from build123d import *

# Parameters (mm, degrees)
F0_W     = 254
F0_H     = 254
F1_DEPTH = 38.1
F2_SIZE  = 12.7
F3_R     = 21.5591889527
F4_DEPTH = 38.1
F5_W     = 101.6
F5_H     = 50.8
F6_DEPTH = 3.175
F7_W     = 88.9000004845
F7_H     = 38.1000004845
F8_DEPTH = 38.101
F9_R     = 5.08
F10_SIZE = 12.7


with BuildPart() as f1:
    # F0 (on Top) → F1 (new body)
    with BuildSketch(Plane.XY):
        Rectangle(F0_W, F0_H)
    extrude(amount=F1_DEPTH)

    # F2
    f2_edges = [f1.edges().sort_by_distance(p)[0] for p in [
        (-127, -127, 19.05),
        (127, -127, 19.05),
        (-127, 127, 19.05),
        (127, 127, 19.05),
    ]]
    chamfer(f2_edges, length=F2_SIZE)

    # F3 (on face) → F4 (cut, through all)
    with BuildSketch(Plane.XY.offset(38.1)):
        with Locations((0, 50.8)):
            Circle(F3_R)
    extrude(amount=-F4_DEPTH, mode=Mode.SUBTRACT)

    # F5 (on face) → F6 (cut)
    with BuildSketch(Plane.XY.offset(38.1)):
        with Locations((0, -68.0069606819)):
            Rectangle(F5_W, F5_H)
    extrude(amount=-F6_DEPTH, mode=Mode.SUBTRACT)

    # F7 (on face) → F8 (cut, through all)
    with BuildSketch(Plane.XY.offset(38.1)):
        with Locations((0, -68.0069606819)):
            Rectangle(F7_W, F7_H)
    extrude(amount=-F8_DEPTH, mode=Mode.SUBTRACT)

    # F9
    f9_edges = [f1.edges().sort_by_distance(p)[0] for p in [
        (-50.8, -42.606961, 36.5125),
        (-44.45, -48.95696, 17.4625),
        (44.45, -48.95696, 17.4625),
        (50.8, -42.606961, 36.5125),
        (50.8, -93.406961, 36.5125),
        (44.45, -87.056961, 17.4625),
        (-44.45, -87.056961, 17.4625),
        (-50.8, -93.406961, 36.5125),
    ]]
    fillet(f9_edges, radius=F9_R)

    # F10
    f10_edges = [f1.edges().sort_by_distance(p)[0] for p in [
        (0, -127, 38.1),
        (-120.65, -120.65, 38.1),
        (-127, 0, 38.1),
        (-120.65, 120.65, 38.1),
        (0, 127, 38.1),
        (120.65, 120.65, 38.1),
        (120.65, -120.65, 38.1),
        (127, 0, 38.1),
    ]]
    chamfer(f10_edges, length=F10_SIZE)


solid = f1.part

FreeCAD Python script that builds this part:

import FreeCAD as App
import Part
import Sketcher

V = App.Vector
Q = App.Units.Quantity


def edges_at(feature, points):
    """Names of the edges that pass closest to the given points."""
    edges = feature.Shape.Edges
    near = lambda p: min(range(len(edges)), key=lambda i: edges[i].distToShape(Part.Vertex(*p))[0])
    return sorted({f"Edge{near(p) + 1}" for p in points})


def add_polygon(sketch, points):
    """Adds a closed chain of lines whose ends are joined by coincident constraints."""
    first, n = sketch.GeometryCount, len(points)
    for a, b in zip(points, points[1:] + points[:1]):
        sketch.addGeometry(Part.LineSegment(App.Vector(*a, 0), App.Vector(*b, 0)), False)
    for i in range(n):
        sketch.addConstraint(Sketcher.Constraint("Coincident", first + i, 2, first + (i + 1) % n, 1))

doc = App.newDocument("Part")
body = doc.addObject("PartDesign::Body", "Body")

# Sketch on XY plane
sketch1 = body.newObject("Sketcher::SketchObject", "Sketch")
sketch1.AttachmentSupport = (doc.getObject("XY_Plane"), [""])
sketch1.MapMode = "FlatFace"
add_polygon(sketch1, [(-127, 127), (-127, -127), (127, -127), (127, 127)])  # lines 0-3
sketch1.addConstraint(Sketcher.Constraint("Vertical", 0))
sketch1.addConstraint(Sketcher.Constraint("Horizontal", 1))
sketch1.addConstraint(Sketcher.Constraint("Vertical", 2))
sketch1.addConstraint(Sketcher.Constraint("Horizontal", 3))
sketch1.addConstraint(Sketcher.Constraint("Symmetric", 0, 2, 2, 2, -1, 1))
sketch1.addConstraint(Sketcher.Constraint("Equal", 3, 0))
sketch1.addConstraint(Sketcher.Constraint("DistanceX", 1, 1, 1, 2, Q("10 in")))
pad1 = body.newObject("PartDesign::Pad", "Pad")
pad1.Profile = sketch1
pad1.Length = Q("1.5 in")
doc.recompute()

chamfer = body.newObject("PartDesign::Chamfer", "Chamfer")
chamfer.Base = (pad1, edges_at(pad1, [
    (-127, -127, 19.05),
    (127, -127, 19.05),
    (-127, 127, 19.05),
    (127, 127, 19.05),
]))
chamfer.Size = Q("0.5 in")

# Sketch on XY plane
sketch2 = body.newObject("Sketcher::SketchObject", "Sketch001")
sketch2.AttachmentSupport = (doc.getObject("XY_Plane"), [""])
sketch2.MapMode = "FlatFace"
sketch2.AttachmentOffset = App.Placement(V(0, 0, 1.5 * 25.4), App.Rotation())
sketch2.addGeometry(Part.Circle(V(0, 50.8, 0), V(0, 0, 1), 21.559189), False)
sketch2.addConstraint(Sketcher.Constraint("PointOnObject", 0, 3, -2))
sketch2.addConstraint(Sketcher.Constraint("DistanceY", -1, 1, 0, 3, Q("2 in")))
sketch2.addConstraint(Sketcher.Constraint("Diameter", 0, 43.118378))
pocket1 = body.newObject("PartDesign::Pocket", "Pocket")
pocket1.Profile = sketch2
pocket1.Type = "ThroughAll"

# Sketch on XY plane
sketch3 = body.newObject("Sketcher::SketchObject", "Sketch002")
sketch3.AttachmentSupport = (doc.getObject("XY_Plane"), [""])
sketch3.MapMode = "FlatFace"
sketch3.AttachmentOffset = App.Placement(V(0, 0, 1.5 * 25.4), App.Rotation())
add_polygon(sketch3, [(-50.8, -42.606961), (-50.8, -93.406961), (50.8, -93.406961), (50.8, -42.606961)])  # lines 0-3
sketch3.addConstraint(Sketcher.Constraint("Vertical", 0))
sketch3.addConstraint(Sketcher.Constraint("Horizontal", 1))
sketch3.addConstraint(Sketcher.Constraint("Vertical", 2))
sketch3.addConstraint(Sketcher.Constraint("Horizontal", 3))
sketch3.addConstraint(Sketcher.Constraint("DistanceX", 1, 1, 1, 2, Q("4 in")))
sketch3.addConstraint(Sketcher.Constraint("DistanceY", 0, 2, 0, 1, Q("2 in")))
sketch3.addConstraint(Sketcher.Constraint("DistanceX", 0, 2, -1, 1, Q("2 in")))
sketch3.addConstraint(Sketcher.Constraint("DistanceY", 0, 2, -1, 1, 93.406961))
pocket2 = body.newObject("PartDesign::Pocket", "Pocket001")
pocket2.Profile = sketch3
pocket2.Length = Q("0.125 in")

# Sketch on XY plane
sketch4 = body.newObject("Sketcher::SketchObject", "Sketch003")
sketch4.AttachmentSupport = (doc.getObject("XY_Plane"), [""])
sketch4.MapMode = "FlatFace"
sketch4.AttachmentOffset = App.Placement(V(0, 0, 1.5 * 25.4), App.Rotation())
add_polygon(sketch4, [(-44.45, -48.95696), (-44.45, -87.056961), (44.45, -87.056961), (44.45, -48.95696)])  # lines 0-3
sketch4.addConstraint(Sketcher.Constraint("Vertical", 0))
sketch4.addConstraint(Sketcher.Constraint("Horizontal", 1))
sketch4.addConstraint(Sketcher.Constraint("Vertical", 2))
sketch4.addConstraint(Sketcher.Constraint("Horizontal", 3))
sketch4.addConstraint(Sketcher.Constraint("DistanceX", 1, 1, 1, 2, Q("3.5 in")))
sketch4.addConstraint(Sketcher.Constraint("DistanceY", 0, 2, 0, 1, Q("1.5 in")))
sketch4.addConstraint(Sketcher.Constraint("DistanceX", 0, 2, -1, 1, Q("1.75 in")))
sketch4.addConstraint(Sketcher.Constraint("DistanceY", 0, 2, -1, 1, 87.056961))
pocket3 = body.newObject("PartDesign::Pocket", "Pocket002")
pocket3.Profile = sketch4
pocket3.Type = "ThroughAll"
doc.recompute()

fillet = body.newObject("PartDesign::Fillet", "Fillet")
fillet.Base = (pocket3, edges_at(pocket3, [
    (-50.8, -42.607, 36.513),
    (-44.45, -48.957, 17.462),
    (44.45, -48.957, 17.462),
    (50.8, -42.607, 36.513),
    (50.8, -93.407, 36.513),
    (44.45, -87.057, 17.462),
    (-44.45, -87.057, 17.462),
    (-50.8, -93.407, 36.513),
]))
fillet.Radius = Q("0.2 in")
doc.recompute()

chamfer2 = body.newObject("PartDesign::Chamfer", "Chamfer001")
chamfer2.Base = (fillet, edges_at(fillet, [
    (0, -127, 38.1),
    (-120.65, -120.65, 38.1),
    (-127, 0, 38.1),
    (-120.65, 120.65, 38.1),
    (0, 127, 38.1),
    (120.65, 120.65, 38.1),
    (120.65, -120.65, 38.1),
    (127, 0, 38.1),
]))
chamfer2.Size = Q("0.5 in")

doc.recompute()
